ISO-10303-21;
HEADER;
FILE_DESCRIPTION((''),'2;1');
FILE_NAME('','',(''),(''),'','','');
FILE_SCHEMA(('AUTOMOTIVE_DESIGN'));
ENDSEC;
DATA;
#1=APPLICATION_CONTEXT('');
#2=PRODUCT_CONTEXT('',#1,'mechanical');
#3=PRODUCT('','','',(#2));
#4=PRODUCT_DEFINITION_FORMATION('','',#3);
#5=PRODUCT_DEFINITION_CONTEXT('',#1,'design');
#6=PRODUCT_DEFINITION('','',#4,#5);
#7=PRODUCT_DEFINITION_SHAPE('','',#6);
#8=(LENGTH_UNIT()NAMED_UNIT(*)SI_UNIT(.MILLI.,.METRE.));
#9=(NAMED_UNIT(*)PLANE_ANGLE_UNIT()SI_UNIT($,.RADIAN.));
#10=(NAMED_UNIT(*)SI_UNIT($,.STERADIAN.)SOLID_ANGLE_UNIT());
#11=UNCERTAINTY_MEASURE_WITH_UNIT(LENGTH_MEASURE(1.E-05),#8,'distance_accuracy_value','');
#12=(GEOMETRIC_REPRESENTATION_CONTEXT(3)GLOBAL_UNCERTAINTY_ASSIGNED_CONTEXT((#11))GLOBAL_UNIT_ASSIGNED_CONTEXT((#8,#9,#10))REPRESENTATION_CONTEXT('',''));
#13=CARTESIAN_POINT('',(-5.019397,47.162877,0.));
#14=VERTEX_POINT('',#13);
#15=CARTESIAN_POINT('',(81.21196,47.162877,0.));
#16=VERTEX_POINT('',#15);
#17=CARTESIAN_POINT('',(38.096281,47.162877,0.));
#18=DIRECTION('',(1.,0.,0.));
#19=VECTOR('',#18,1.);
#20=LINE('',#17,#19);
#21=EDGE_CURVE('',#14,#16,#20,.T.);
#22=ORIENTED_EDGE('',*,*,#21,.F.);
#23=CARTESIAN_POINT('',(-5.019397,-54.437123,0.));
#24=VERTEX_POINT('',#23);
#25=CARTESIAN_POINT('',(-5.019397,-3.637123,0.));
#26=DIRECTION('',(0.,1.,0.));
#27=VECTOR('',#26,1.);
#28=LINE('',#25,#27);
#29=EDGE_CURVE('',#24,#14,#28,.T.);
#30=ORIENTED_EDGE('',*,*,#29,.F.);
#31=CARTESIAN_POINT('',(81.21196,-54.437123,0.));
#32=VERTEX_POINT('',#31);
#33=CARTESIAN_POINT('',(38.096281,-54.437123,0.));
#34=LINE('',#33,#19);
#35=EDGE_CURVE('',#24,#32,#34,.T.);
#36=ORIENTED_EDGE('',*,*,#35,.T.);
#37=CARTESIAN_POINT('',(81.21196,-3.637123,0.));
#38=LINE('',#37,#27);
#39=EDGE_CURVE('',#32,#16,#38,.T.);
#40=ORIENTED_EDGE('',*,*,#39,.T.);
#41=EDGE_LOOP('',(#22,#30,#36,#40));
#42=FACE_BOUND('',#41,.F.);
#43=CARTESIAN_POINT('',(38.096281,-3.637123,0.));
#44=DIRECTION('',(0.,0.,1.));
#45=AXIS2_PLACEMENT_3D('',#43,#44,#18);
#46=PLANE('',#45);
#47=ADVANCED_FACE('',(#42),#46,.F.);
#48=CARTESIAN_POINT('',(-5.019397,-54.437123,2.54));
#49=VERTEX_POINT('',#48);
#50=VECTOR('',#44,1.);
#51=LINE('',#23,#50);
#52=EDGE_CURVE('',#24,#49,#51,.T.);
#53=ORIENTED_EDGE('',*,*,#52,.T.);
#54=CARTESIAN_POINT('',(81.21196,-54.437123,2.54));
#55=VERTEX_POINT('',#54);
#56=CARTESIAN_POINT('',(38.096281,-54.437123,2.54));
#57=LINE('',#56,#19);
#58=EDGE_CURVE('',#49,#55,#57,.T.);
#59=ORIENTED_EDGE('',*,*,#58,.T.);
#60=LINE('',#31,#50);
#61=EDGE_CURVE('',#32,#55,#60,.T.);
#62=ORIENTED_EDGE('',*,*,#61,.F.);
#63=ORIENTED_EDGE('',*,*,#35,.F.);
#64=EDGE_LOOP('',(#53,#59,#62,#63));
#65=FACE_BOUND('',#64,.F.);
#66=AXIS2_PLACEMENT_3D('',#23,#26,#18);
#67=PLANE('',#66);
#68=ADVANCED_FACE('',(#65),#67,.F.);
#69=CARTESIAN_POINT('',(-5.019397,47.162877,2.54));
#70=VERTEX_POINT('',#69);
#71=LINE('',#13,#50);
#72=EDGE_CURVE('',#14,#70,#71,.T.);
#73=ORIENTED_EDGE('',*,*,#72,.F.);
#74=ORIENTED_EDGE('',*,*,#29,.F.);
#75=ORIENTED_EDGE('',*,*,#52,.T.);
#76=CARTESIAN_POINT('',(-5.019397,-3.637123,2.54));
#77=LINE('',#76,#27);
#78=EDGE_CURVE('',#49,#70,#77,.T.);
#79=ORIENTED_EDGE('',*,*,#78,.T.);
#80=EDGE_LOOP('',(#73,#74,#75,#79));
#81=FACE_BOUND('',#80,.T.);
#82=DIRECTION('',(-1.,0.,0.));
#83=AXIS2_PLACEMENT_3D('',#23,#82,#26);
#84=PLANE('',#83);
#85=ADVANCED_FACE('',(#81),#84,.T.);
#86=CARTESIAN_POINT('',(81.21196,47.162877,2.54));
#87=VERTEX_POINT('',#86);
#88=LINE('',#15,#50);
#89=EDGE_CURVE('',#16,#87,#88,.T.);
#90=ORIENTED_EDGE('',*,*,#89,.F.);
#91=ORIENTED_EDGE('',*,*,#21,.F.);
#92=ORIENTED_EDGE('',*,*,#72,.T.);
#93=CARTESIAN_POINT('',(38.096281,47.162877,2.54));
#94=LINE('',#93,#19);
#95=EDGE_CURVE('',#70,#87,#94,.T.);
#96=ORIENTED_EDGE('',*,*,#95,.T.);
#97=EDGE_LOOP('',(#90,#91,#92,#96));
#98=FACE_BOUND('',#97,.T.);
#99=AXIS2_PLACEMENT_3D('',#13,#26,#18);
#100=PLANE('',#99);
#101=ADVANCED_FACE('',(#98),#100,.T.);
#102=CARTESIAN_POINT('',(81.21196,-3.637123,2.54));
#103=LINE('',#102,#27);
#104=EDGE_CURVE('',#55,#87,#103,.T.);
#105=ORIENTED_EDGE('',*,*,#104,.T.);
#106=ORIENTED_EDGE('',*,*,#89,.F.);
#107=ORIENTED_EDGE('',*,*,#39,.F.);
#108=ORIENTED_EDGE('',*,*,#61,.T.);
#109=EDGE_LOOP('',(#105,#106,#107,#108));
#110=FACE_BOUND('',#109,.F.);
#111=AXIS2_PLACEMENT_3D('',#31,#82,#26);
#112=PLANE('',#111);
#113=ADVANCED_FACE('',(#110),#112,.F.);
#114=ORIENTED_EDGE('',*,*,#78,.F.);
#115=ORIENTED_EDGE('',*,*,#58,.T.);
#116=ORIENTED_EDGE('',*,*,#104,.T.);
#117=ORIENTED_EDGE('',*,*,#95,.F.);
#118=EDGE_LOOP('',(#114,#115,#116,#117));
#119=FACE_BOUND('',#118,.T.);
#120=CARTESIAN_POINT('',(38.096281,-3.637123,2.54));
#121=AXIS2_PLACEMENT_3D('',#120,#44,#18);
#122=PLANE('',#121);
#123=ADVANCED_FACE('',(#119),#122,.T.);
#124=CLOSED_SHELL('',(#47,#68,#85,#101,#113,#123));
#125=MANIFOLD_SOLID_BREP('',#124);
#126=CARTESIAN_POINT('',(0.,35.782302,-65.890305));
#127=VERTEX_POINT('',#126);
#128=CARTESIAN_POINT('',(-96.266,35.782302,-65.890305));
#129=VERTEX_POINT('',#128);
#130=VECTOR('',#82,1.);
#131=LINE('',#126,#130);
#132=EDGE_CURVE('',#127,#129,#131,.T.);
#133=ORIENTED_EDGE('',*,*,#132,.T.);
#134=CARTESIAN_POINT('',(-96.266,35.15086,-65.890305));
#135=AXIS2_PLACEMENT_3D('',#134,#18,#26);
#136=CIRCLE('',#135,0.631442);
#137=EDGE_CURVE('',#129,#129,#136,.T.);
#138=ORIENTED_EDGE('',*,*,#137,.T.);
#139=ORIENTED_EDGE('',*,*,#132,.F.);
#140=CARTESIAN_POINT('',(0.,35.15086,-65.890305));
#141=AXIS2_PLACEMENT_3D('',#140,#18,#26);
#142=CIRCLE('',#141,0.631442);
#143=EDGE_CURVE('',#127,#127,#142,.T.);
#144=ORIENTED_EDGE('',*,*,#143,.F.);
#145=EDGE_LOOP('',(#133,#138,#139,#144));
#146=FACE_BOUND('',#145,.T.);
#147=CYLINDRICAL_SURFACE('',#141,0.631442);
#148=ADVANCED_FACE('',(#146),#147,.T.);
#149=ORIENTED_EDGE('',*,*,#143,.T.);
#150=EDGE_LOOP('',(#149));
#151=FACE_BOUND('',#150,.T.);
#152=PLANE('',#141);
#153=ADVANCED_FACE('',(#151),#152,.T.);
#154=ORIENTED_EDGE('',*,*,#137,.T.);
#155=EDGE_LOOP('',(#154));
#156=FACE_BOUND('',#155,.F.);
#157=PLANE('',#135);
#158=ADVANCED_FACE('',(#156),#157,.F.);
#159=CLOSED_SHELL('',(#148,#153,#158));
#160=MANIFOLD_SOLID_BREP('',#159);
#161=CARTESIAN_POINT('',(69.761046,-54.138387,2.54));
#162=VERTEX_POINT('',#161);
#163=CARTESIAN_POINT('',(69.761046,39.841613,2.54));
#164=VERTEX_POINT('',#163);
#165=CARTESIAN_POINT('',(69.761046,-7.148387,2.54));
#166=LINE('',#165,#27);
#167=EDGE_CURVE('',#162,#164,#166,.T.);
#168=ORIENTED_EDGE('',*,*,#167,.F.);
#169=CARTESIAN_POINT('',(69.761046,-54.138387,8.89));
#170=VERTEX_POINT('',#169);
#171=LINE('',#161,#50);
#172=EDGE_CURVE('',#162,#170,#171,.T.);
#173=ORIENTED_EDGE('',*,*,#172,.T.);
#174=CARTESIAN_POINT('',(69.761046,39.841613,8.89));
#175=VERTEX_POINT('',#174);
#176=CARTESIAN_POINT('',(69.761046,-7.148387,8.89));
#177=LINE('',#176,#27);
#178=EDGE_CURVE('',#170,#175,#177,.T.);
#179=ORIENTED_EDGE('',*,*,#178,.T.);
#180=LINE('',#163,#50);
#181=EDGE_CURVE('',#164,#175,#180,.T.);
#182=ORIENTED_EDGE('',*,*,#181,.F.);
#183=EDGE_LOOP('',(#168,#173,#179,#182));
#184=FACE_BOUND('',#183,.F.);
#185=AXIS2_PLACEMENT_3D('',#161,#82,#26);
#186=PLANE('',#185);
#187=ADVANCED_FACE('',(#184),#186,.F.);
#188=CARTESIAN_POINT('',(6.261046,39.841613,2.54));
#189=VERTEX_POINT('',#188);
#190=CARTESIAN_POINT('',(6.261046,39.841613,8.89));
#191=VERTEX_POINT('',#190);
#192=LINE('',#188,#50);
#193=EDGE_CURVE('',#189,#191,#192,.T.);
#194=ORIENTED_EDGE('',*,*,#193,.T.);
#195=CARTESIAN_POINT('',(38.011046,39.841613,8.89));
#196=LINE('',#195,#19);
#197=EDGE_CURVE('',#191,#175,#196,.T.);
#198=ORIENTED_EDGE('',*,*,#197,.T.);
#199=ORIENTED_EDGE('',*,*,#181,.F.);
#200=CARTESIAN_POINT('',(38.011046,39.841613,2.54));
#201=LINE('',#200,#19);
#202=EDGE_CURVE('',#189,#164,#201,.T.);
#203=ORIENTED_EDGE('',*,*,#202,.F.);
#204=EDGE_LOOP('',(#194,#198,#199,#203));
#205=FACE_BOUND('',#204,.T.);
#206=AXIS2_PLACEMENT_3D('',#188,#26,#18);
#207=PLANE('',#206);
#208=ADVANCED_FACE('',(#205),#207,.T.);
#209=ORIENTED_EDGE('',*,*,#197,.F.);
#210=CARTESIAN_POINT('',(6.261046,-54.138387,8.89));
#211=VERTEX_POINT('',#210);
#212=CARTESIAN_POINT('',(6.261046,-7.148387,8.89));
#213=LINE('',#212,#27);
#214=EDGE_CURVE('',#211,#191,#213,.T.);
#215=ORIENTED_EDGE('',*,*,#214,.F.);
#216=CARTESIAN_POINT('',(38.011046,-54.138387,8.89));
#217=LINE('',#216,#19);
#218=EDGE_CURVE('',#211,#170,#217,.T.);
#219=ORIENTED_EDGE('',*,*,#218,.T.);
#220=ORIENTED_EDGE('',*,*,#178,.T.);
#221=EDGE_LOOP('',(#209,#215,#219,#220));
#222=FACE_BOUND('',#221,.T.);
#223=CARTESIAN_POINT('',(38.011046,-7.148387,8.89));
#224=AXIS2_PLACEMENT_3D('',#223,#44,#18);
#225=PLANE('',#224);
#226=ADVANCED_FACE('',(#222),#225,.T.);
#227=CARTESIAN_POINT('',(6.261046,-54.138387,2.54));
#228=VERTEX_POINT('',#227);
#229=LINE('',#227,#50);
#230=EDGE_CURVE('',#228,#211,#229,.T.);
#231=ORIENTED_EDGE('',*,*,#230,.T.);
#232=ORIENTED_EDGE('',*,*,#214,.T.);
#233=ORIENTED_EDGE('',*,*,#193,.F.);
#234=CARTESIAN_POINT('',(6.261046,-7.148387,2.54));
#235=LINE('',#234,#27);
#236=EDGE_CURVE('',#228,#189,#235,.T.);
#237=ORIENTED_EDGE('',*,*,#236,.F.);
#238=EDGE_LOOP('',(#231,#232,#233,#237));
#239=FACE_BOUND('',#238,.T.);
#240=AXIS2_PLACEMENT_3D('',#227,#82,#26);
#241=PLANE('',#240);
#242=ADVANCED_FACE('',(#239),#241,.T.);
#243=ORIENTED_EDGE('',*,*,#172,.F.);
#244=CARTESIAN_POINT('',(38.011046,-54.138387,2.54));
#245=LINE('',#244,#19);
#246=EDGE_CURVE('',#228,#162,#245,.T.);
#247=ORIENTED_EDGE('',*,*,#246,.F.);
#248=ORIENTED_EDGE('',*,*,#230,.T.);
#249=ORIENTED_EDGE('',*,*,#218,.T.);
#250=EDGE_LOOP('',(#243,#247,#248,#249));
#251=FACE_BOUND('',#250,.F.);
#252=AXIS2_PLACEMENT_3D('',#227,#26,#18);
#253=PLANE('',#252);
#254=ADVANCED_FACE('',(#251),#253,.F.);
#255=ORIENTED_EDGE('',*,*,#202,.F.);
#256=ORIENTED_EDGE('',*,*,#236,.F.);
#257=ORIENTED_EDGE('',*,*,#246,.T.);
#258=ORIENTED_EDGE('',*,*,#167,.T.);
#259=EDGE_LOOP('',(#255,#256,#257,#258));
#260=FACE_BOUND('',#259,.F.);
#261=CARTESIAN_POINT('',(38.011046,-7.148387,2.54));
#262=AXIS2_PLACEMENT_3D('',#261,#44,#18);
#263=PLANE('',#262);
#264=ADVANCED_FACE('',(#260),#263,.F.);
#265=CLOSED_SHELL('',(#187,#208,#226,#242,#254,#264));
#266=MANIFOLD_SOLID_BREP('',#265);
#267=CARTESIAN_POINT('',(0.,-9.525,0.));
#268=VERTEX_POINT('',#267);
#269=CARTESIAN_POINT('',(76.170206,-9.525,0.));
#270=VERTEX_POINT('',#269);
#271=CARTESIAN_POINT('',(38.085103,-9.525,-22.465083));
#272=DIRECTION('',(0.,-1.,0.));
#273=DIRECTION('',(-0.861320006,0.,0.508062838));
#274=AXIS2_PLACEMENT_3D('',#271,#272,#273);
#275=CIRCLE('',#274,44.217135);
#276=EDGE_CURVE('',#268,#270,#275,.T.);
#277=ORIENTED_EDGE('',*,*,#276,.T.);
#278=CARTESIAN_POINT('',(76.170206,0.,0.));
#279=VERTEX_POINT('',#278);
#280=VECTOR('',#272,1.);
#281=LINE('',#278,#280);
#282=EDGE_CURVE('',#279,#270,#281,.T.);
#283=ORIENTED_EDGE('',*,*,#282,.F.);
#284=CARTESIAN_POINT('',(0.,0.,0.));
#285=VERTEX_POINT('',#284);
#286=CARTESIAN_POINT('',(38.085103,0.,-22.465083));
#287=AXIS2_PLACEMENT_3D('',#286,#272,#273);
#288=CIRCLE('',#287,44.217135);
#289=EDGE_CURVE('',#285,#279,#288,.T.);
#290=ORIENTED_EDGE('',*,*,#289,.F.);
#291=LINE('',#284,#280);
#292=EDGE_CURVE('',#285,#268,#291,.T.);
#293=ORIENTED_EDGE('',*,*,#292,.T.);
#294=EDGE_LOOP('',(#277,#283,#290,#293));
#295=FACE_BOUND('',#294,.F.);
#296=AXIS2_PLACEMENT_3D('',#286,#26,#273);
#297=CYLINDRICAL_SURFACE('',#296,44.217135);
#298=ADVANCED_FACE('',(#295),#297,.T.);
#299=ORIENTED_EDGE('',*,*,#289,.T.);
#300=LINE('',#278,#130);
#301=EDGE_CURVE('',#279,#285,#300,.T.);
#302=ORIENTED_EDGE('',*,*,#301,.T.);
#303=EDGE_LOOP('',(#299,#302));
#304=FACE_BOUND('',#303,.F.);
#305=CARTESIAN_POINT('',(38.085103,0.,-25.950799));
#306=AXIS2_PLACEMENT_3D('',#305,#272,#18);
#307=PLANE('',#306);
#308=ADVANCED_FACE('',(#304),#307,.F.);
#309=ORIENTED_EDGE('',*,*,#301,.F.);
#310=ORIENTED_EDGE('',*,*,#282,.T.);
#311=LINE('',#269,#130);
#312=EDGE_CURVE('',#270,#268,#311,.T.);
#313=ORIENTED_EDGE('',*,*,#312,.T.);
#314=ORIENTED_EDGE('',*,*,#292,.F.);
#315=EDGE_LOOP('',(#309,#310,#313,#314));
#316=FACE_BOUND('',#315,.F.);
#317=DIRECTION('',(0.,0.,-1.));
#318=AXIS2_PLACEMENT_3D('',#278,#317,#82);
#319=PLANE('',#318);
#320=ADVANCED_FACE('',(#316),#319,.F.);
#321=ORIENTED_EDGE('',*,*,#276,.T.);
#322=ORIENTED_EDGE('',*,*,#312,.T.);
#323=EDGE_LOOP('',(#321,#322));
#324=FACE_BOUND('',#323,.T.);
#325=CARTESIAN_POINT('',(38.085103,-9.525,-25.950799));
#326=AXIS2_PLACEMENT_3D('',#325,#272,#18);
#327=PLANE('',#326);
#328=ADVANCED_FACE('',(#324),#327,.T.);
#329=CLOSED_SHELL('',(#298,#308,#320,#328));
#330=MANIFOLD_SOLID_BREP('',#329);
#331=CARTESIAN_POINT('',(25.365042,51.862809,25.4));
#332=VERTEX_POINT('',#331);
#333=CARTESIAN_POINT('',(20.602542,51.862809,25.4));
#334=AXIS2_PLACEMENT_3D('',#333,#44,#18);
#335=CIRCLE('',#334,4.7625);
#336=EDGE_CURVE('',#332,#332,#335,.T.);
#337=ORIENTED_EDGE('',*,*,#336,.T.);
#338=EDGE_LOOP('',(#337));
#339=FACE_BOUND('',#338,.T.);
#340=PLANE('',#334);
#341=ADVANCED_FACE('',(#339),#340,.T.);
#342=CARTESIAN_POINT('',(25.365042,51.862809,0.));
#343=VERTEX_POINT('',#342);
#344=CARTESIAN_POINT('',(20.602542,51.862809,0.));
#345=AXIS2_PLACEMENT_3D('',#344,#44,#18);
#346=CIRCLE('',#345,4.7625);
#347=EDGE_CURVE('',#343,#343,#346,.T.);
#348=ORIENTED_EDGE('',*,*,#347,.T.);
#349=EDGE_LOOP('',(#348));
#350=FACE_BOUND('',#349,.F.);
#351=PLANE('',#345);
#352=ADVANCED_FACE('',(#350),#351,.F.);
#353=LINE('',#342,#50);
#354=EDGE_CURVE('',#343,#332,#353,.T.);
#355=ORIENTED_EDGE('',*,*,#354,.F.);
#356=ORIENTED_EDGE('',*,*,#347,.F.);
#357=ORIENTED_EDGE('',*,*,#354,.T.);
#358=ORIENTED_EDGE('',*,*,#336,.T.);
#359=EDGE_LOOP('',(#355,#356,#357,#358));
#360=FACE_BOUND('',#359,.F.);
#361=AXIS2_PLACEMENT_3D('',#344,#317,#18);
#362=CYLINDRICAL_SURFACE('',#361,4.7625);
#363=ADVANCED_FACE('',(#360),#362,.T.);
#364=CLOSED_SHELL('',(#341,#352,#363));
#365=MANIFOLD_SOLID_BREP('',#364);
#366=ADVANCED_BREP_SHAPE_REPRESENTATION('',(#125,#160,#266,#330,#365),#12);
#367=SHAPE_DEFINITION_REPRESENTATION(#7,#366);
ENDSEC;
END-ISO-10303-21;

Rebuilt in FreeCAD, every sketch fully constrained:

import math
import FreeCAD as App
import Part
import Sketcher
Q = App.Units.Quantity


def add_polygon(sketch, points):
    """Adds a closed chain of lines whose ends are joined by coincident constraints."""
    first, n = sketch.GeometryCount, len(points)
    for a, b in zip(points, points[1:] + points[:1]):
        sketch.addGeometry(Part.LineSegment(App.Vector(*a, 0), App.Vector(*b, 0)), False)
    for i in range(n):
        sketch.addConstraint(Sketcher.Constraint("Coincident", first + i, 2, first + (i + 1) % n, 1))

doc = App.newDocument("Part")
body = doc.addObject("PartDesign::Body", "Body")

# Sketch on XZ plane
sketch1 = body.newObject("Sketcher::SketchObject", "Sketch")
sketch1.AttachmentSupport = (doc.getObject("XZ_Plane"), [""])
sketch1.MapMode = "FlatFace"
sketch1.addGeometry(Part.LineSegment(App.Vector(76.170206, 0, 0), App.Vector(0, 0, 0)), False)
sketch1.addGeometry(Part.ArcOfCircle(Part.Circle(App.Vector(38.085103, -22.465083, 0), App.Vector(0, 0, 1), 44.217135), math.radians(149.465118), math.radians(390.534882)), False)
sketch1.addConstraint(Sketcher.Constraint("Coincident", 0, 1, 1, 2))
sketch1.addConstraint(Sketcher.Constraint("Coincident", 1, 1, 0, 2))
sketch1.addConstraint(Sketcher.Constraint("Horizontal", 0))
sketch1.addConstraint(Sketcher.Constraint("Coincident", 1, 1, -1, 1))
sketch1.addConstraint(Sketcher.Constraint("Radius", 1, Q("44.217135 mm")))
sketch1.addConstraint(Sketcher.Constraint("DistanceX", 0, 2, 0, 1, Q("76.170206 mm")))
pad1 = body.newObject("PartDesign::Pad", "Pad")
pad1.Profile = sketch1
pad1.Length = Q("0.375 in")
body2 = doc.addObject("PartDesign::Body", "Body001")

# Sketch on XY plane
sketch2 = body2.newObject("Sketcher::SketchObject", "Sketch001")
sketch2.AttachmentSupport = (doc.getObject("XY_Plane001"), [""])
sketch2.MapMode = "FlatFace"
add_polygon(sketch2, [(-5.019397, 47.162877), (-5.019397, -54.437123), (81.21196, -54.437123), (81.21196, 47.162877)])  # lines 0-3
sketch2.addConstraint(Sketcher.Constraint("Vertical", 0))
sketch2.addConstraint(Sketcher.Constraint("Horizontal", 1))
sketch2.addConstraint(Sketcher.Constraint("Vertical", 2))
sketch2.addConstraint(Sketcher.Constraint("Horizontal", 3))
sketch2.addConstraint(Sketcher.Constraint("DistanceY", 0, 2, 0, 1, Q("4 in")))
sketch2.addConstraint(Sketcher.Constraint("DistanceX", 1, 1, 1, 2, Q("86.231357 mm")))
sketch2.addConstraint(Sketcher.Constraint("DistanceX", -1, 1, 1, 2, Q("81.21196 mm")))
sketch2.addConstraint(Sketcher.Constraint("DistanceY", 0, 2, -1, 1, Q("54.437123 mm")))
pad2 = body2.newObject("PartDesign::Pad", "Pad001")
pad2.Profile = sketch2
pad2.Length = Q("0.1 in")
body3 = doc.addObject("PartDesign::Body", "Body002")

# Sketch on XY plane
sketch3 = body3.newObject("Sketcher::SketchObject", "Sketch002")
sketch3.AttachmentSupport = (doc.getObject("XY_Plane002"), [""])
sketch3.MapMode = "FlatFace"
sketch3.AttachmentOffset = App.Placement(App.Vector(0, 0, 0.1 * 25.4), App.Rotation())
add_polygon(sketch3, [(6.261046, 39.841613), (6.261046, -54.138387), (69.761046, -54.138387), (69.761046, 39.841613)])  # lines 0-3
sketch3.addConstraint(Sketcher.Constraint("Vertical", 0))
sketch3.addConstraint(Sketcher.Constraint("Horizontal", 1))
sketch3.addConstraint(Sketcher.Constraint("Vertical", 2))
sketch3.addConstraint(Sketcher.Constraint("Horizontal", 3))
sketch3.addConstraint(Sketcher.Constraint("DistanceX", 1, 1, 1, 2, Q("2.5 in")))
sketch3.addConstraint(Sketcher.Constraint("DistanceY", 0, 2, 0, 1, Q("3.7 in")))
sketch3.addConstraint(Sketcher.Constraint("DistanceX", -1, 1, 0, 2, Q("6.261046 mm")))
sketch3.addConstraint(Sketcher.Constraint("DistanceY", 0, 2, -1, 1, Q("54.138387 mm")))
pad3 = body3.newObject("PartDesign::Pad", "Pad002")
pad3.Profile = sketch3
pad3.Length = Q("0.25 in")
body4 = doc.addObject("PartDesign::Body", "Body003")

# Sketch on XY plane
sketch4 = body4.newObject("Sketcher::SketchObject", "Sketch003")
sketch4.AttachmentSupport = (doc.getObject("XY_Plane003"), [""])
sketch4.MapMode = "FlatFace"
sketch4.addGeometry(Part.Circle(App.Vector(20.602542, 51.862809, 0), App.Vector(0, 0, 1), 4.7625), False)
sketch4.addConstraint(Sketcher.Constraint("Diameter", 0, Q("0.375 in")))
sketch4.addConstraint(Sketcher.Constraint("DistanceX", -1, 1, 0, 3, Q("20.602542 mm")))
sketch4.addConstraint(Sketcher.Constraint("DistanceY", -1, 1, 0, 3, Q("51.862809 mm")))
pad4 = body4.newObject("PartDesign::Pad", "Pad003")
pad4.Profile = sketch4
pad4.Length = Q("1 in")
body5 = doc.addObject("PartDesign::Body", "Body004")

# Sketch on YZ plane
sketch5 = body5.newObject("Sketcher::SketchObject", "Sketch004")
sketch5.AttachmentSupport = (doc.getObject("YZ_Plane004"), [""])
sketch5.MapMode = "FlatFace"
sketch5.addGeometry(Part.Circle(App.Vector(35.15086, -65.890305, 0), App.Vector(0, 0, 1), 0.631442), False)
sketch5.addConstraint(Sketcher.Constraint("Diameter", 0, Q("1.262885 mm")))
sketch5.addConstraint(Sketcher.Constraint("DistanceX", -1, 1, 0, 3, Q("35.15086 mm")))
sketch5.addConstraint(Sketcher.Constraint("DistanceY", 0, 3, -1, 1, Q("65.890305 mm")))
pad5 = body5.newObject("PartDesign::Pad", "Pad004")
pad5.Profile = sketch5
pad5.Length = Q("3.79 in")
pad5.Reversed = True

doc.recompute()
